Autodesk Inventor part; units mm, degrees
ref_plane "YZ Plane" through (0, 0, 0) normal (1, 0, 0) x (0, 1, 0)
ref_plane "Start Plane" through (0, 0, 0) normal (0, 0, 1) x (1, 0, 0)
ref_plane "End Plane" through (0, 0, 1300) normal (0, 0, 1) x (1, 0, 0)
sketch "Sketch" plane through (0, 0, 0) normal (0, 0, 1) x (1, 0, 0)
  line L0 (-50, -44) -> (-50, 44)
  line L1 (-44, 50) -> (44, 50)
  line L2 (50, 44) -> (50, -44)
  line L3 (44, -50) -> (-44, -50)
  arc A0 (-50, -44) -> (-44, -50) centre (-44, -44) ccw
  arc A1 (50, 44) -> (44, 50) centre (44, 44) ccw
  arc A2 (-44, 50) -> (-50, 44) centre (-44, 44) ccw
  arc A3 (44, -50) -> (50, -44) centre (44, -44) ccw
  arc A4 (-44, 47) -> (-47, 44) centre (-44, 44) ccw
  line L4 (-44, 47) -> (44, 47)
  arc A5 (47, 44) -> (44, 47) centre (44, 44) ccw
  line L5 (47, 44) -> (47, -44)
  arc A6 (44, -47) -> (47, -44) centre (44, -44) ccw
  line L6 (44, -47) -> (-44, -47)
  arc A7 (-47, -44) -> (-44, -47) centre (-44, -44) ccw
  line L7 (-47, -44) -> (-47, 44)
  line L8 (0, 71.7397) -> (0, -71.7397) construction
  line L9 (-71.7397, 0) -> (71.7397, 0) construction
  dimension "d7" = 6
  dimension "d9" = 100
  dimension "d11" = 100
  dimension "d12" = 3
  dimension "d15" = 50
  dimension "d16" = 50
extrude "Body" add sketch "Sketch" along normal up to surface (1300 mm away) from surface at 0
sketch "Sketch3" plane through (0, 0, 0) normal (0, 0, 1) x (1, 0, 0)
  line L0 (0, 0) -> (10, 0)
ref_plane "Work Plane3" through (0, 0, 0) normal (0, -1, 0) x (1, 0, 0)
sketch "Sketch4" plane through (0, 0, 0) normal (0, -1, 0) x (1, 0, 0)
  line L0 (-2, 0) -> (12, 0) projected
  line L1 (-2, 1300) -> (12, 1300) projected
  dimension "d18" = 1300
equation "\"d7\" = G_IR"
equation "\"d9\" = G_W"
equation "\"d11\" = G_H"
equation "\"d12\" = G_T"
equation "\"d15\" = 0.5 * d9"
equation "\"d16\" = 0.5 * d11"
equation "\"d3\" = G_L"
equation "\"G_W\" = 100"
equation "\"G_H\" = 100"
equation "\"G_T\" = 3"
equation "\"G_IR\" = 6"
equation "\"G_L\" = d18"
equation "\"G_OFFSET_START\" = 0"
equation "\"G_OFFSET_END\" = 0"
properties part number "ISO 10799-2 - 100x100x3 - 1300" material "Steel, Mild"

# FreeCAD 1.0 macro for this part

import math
import FreeCAD as App
import Part
import Sketcher

V = App.Vector

doc = App.newDocument("Part")
params = doc.addObject("Spreadsheet::Sheet", "Params")
for row, (alias, value) in enumerate([
    ("sketch1_radius", "6 mm"),
    ("sketch1_radius2", "3 mm"),
    ("pad1_length", "1300 mm"),
], start=1):
    params.set(f"A{row}", alias)
    params.set(f"B{row}", "=" + value)
    params.setAlias(f"B{row}", alias)

body = doc.addObject("PartDesign::Body", "Body")

sketch1 = body.newObject("Sketcher::SketchObject", "Sketch")
sketch1.AttachmentSupport = (doc.getObject("XY_Plane"), [""])
sketch1.MapMode = "FlatFace"
sketch1.addGeometry([
    Part.LineSegment(V(-50, 44, 0), V(-50, -44, 0)),
    Part.ArcOfCircle(Part.Circle(V(-44, -44, 0), V(0, 0, 1), 6), math.radians(180), math.radians(270)),
    Part.LineSegment(V(-44, -50, 0), V(44, -50, 0)),
    Part.ArcOfCircle(Part.Circle(V(44, -44, 0), V(0, 0, 1), 6), math.radians(-90), math.radians(0)),
    Part.LineSegment(V(50, -44, 0), V(50, 44, 0)),
    Part.ArcOfCircle(Part.Circle(V(44, 44, 0), V(0, 0, 1), 6), math.radians(0), math.radians(90)),
    Part.LineSegment(V(44, 50, 0), V(-44, 50, 0)),
    Part.ArcOfCircle(Part.Circle(V(-44, 44, 0), V(0, 0, 1), 6), math.radians(90), math.radians(180)),
    Part.ArcOfCircle(Part.Circle(V(-44, 44, 0), V(0, 0, 1), 3), math.radians(90), math.radians(180)),
    Part.LineSegment(V(-44, 47, 0), V(44, 47, 0)),
    Part.ArcOfCircle(Part.Circle(V(44, 44, 0), V(0, 0, 1), 3), math.radians(0), math.radians(90)),
    Part.LineSegment(V(47, 44, 0), V(47, -44, 0)),
    Part.ArcOfCircle(Part.Circle(V(44, -44, 0), V(0, 0, 1), 3), math.radians(-90), math.radians(0)),
    Part.LineSegment(V(44, -47, 0), V(-44, -47, 0)),
    Part.ArcOfCircle(Part.Circle(V(-44, -44, 0), V(0, 0, 1), 3), math.radians(180), math.radians(270)),
    Part.LineSegment(V(-47, -44, 0), V(-47, 44, 0)),
], False)
sketch1.addConstraint([
    Sketcher.Constraint("Tangent", 0, 2, 1, 1),
    Sketcher.Constraint("Tangent", 1, 2, 2, 1),
    Sketcher.Constraint("Tangent", 2, 2, 3, 1),
    Sketcher.Constraint("Tangent", 3, 2, 4, 1),
    Sketcher.Constraint("Tangent", 4, 2, 5, 1),
    Sketcher.Constraint("Tangent", 5, 2, 6, 1),
    Sketcher.Constraint("Tangent", 6, 2, 7, 1),
    Sketcher.Constraint("Tangent", 7, 2, 0, 1),
    Sketcher.Constraint("Tangent", 8, 1, 9, 1),
    Sketcher.Constraint("Tangent", 9, 2, 10, 2),
    Sketcher.Constraint("Tangent", 10, 1, 11, 1),
    Sketcher.Constraint("Tangent", 11, 2, 12, 2),
    Sketcher.Constraint("Tangent", 12, 1, 13, 1),
    Sketcher.Constraint("Tangent", 13, 2, 14, 2),
    Sketcher.Constraint("Tangent", 14, 1, 15, 1),
    Sketcher.Constraint("Tangent", 15, 2, 8, 2),
    Sketcher.Constraint("Vertical", 0),
    Sketcher.Constraint("Horizontal", 2),
    Sketcher.Constraint("Vertical", 4),
    Sketcher.Constraint("Horizontal", 6),
    Sketcher.Constraint("Horizontal", 9),
    Sketcher.Constraint("Vertical", 11),
    Sketcher.Constraint("Horizontal", 13),
    Sketcher.Constraint("Vertical", 15),
    Sketcher.Constraint("Coincident", 8, 3, 7, 3),
    Sketcher.Constraint("Coincident", 10, 3, 5, 3),
    Sketcher.Constraint("Coincident", 12, 3, 3, 3),
    Sketcher.Constraint("Equal", 1, 3),
    Sketcher.Constraint("Equal", 3, 5),
    Sketcher.Constraint("Equal", 5, 7),
    Sketcher.Constraint("Equal", 12, 14),
    Sketcher.Constraint("Symmetric", 1, 3, 5, 3, -1, 1),
    Sketcher.Constraint("Equal", 13, 0),
    Sketcher.Constraint("Radius", 1, 6.0),
    Sketcher.Constraint("Radius", 8, 3.0),
    Sketcher.Constraint("DistanceX", 0, 2, -1, 1, 50.0),
])
sketch1.setExpression("Constraints[33]", "Params.sketch1_radius")
sketch1.setExpression("Constraints[34]", "Params.sketch1_radius2")
pad1 = body.newObject("PartDesign::Pad", "Pad")
pad1.Profile = sketch1
pad1.setExpression("Length", "Params.pad1_length")

doc.recompute()
